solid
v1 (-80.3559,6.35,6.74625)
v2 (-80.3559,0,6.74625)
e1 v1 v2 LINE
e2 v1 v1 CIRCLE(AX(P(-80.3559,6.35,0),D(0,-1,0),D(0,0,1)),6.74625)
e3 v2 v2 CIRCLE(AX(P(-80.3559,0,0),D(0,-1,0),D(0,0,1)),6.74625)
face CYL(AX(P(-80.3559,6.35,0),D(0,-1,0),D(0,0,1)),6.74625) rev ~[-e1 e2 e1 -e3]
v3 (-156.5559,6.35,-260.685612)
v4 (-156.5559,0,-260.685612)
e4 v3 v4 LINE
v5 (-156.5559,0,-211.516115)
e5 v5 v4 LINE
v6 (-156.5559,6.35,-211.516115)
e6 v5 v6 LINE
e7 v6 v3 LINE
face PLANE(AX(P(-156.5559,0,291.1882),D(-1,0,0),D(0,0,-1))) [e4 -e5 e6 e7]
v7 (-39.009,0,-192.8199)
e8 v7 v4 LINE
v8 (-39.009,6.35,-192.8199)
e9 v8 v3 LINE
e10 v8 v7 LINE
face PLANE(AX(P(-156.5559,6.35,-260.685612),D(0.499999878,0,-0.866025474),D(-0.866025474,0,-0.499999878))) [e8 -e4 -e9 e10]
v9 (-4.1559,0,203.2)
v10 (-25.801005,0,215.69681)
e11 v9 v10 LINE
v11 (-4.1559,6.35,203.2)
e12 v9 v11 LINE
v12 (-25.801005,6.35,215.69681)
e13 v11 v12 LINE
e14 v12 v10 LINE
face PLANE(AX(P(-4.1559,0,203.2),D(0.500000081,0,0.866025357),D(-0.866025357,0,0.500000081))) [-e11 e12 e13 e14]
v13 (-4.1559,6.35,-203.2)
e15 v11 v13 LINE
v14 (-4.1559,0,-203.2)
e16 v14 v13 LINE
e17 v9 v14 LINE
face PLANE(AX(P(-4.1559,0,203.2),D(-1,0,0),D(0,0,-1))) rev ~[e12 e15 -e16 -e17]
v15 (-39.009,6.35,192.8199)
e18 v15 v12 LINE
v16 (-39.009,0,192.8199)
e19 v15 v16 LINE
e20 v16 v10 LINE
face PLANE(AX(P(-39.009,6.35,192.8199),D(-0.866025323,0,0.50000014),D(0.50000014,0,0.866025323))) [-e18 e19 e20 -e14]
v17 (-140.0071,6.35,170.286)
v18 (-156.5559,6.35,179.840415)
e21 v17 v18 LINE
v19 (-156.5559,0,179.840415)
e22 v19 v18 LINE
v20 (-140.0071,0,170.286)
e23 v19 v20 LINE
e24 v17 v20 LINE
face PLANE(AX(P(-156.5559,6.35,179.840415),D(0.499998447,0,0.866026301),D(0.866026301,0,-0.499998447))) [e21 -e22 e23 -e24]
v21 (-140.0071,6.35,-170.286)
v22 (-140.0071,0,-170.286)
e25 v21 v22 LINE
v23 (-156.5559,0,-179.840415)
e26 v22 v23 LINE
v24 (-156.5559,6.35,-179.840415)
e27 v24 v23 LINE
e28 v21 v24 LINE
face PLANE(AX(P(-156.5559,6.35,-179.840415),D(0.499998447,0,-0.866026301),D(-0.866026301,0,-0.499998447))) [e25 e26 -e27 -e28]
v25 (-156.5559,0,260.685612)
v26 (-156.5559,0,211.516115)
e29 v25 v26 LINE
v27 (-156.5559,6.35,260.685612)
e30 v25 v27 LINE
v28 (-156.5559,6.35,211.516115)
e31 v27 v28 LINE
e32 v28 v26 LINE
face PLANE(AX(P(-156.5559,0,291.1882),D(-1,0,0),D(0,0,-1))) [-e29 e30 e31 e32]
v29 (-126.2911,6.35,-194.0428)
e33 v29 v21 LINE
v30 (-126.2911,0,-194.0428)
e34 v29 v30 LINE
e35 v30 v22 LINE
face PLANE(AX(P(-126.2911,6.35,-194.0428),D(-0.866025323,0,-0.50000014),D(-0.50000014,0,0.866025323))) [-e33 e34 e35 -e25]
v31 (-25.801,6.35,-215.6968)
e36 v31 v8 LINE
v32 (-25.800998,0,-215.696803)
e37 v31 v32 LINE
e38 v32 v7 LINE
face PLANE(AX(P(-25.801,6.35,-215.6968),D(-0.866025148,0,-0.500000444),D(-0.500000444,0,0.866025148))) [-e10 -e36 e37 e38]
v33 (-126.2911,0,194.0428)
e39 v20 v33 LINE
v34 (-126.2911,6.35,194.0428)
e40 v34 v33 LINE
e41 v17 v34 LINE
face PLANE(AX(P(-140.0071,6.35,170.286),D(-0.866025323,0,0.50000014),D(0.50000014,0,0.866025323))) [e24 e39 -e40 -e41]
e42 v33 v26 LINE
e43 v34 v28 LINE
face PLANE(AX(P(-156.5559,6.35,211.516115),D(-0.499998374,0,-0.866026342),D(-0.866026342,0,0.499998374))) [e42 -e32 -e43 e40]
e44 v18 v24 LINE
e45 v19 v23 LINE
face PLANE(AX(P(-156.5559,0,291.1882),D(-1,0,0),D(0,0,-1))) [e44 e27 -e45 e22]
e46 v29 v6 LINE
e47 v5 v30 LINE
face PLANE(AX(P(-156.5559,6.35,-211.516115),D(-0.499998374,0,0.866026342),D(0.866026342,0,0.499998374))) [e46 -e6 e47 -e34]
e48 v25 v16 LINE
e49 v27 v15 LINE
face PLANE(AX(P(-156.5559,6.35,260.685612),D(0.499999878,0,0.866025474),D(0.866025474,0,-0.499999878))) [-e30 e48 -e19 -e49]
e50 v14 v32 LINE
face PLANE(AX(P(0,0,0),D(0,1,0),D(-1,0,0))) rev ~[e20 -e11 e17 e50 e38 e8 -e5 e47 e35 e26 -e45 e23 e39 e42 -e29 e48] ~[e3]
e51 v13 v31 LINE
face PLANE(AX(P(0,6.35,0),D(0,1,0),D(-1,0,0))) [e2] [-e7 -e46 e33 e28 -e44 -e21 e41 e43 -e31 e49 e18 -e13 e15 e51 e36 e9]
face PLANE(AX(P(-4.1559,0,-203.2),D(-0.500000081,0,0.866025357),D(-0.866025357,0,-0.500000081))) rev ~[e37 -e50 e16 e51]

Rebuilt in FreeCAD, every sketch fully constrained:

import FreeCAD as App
import Part
import Sketcher
from FreeCAD import Vector
Q = App.Units.Quantity

doc = App.newDocument("Part")
body = doc.addObject("PartDesign::Body", "Body")

sketch1 = doc.addObject("Sketcher::SketchObject", "Sketch")
body.addObject(sketch1)
sketch1.AttachmentSupport = (doc.XZ_Plane, [""])
sketch1.MapMode = "FlatFace"
sketch1.addGeometry([
    Part.LineSegment(Vector(-157, 291, 0), Vector(-4, 203, 0)),
    Part.LineSegment(Vector(-4, 203, 0), Vector(-4, -203, 0)),
    Part.LineSegment(Vector(-4, -203, 0), Vector(-157, -291, 0)),
    Part.LineSegment(Vector(-157, -291, 0), Vector(-157, 291, 0)),
], False)
sketch1.addConstraint([
    Sketcher.Constraint("Coincident", 0, 2, 1, 1),
    Sketcher.Constraint("Coincident", 1, 2, 2, 1),
    Sketcher.Constraint("Coincident", 2, 2, 3, 1),
    Sketcher.Constraint("Coincident", 3, 2, 0, 1),
    Sketcher.Constraint("Vertical", 1),
    Sketcher.Constraint("Vertical", 3),
    Sketcher.Constraint("Equal", 0, 2),
    Sketcher.Constraint("DistanceY", 1, 2, 1, 1, Q("16 in")),
    Sketcher.Constraint("Angle", 0, Q("-30 deg")),
    Sketcher.Constraint("DistanceX", 2, 2, 1, 2, Q("6 in")),
    Sketcher.Constraint("DistanceY", -1, 1, 0, 2, Q("8 in")),
    Sketcher.Constraint("DistanceX", 0, 2, -1, 1, Q("4.156 mm")),
])
pad1 = doc.addObject("PartDesign::Pad", "Pad")
body.addObject(pad1)
pad1.Profile = sketch1
pad1.Length = Q("0.25 in")
pad1.Reversed = True

sketch2 = doc.addObject("Sketcher::SketchObject", "Sketch001")
body.addObject(sketch2)
sketch2.AttachmentSupport = (doc.XZ_Plane, [""])
sketch2.MapMode = "FlatFace"
sketch2.AttachmentOffset = App.Placement(Vector(0, 0, -0.25 * 25.4), App.Rotation())
sketch2.addGeometry(Part.Circle(Vector(-80, 0, 0), Vector(0, 0, 1), 7), False)
sketch2.addConstraint([
    Sketcher.Constraint("PointOnObject", 0, 3, -1),
    Sketcher.Constraint("Diameter", 0, Q("0.5312 in")),
    Sketcher.Constraint("DistanceX", 0, 3, -1, 1, Q("80.356 mm")),
])
doc.recompute()
hole = doc.addObject("PartDesign::Hole", "Hole")
body.addObject(hole)
hole.Profile = sketch2
hole.ThreadType = "None"
hole.Diameter = Q("0.5312008 in")
hole.DepthType = "ThroughAll"
hole.Reversed = True

sketch3 = doc.addObject("Sketcher::SketchObject", "Sketch002")
body.addObject(sketch3)
sketch3.AttachmentSupport = (doc.XZ_Plane, [""])
sketch3.MapMode = "FlatFace"
sketch3.AttachmentOffset = App.Placement(Vector(0, 0, -0.25 * 25.4), App.Rotation())
sketch3.addGeometry([
    Part.LineSegment(Vector(-39, 192.8, 0), Vector(-157.6, 261.3, 0)),
    Part.LineSegment(Vector(-157.6, 261.3, 0), Vector(-157.6, 262.4, 0)),
    Part.LineSegment(Vector(-157.6, 262.4, 0), Vector(-1271.2, 905.4, 0)),
    Part.LineSegment(Vector(-1271.2, 905.4, 0), Vector(-1258.5, 927.4, 0)),
    Part.LineSegment(Vector(-1258.5, 927.4, 0), Vector(-157.6, 291.8, 0)),
    Part.LineSegment(Vector(-157.6, 291.8, 0), Vector(-157.6, 292.9, 0)),
    Part.LineSegment(Vector(-157.6, 292.9, 0), Vector(-25.3, 216.6, 0)),
    Part.LineSegment(Vector(-25.3, 216.6, 0), Vector(-39, 192.8, 0)),
    Part.LineSegment(Vector(-157.6, -261.3, 0), Vector(-39, -192.8, 0)),
    Part.LineSegment(Vector(-39, -192.8, 0), Vector(-25.8, -215.7, 0)),
    Part.LineSegment(Vector(-25.8, -215.7, 0), Vector(-26.7, -216.2, 0)),
    Part.LineSegment(Vector(-26.7, -216.2, 0), Vector(-157.6, -291.8, 0)),
    Part.LineSegment(Vector(-157.6, -291.8, 0), Vector(-157.6, -261.3, 0)),
    Part.LineSegment(Vector(-157.6, -180.4, 0), Vector(-140, -170.3, 0)),
    Part.LineSegment(Vector(-140, -170.3, 0), Vector(-126.3, -194, 0)),
    Part.LineSegment(Vector(-126.3, -194, 0), Vector(-157.6, -212.1, 0)),
    Part.LineSegment(Vector(-157.6, -212.1, 0), Vector(-157.6, -210.9, 0)),
    Part.LineSegment(Vector(-157.6, -210.9, 0), Vector(-1227.5, -828.7, 0)),
    Part.LineSegment(Vector(-1227.5, -828.7, 0), Vector(-1240.2, -806.7, 0)),
    Part.LineSegment(Vector(-1240.2, -806.7, 0), Vector(-157.6, -181.6, 0)),
    Part.LineSegment(Vector(-157.6, -181.6, 0), Vector(-157.6, -180.4, 0)),
    Part.LineSegment(Vector(-157.6, 212.1, 0), Vector(-126.3, 194, 0)),
    Part.LineSegment(Vector(-126.3, 194, 0), Vector(-140, 170.3, 0)),
    Part.LineSegment(Vector(-140, 170.3, 0), Vector(-157.6, 180.4, 0)),
    Part.LineSegment(Vector(-157.6, 180.4, 0), Vector(-157.6, 181.6, 0)),
    Part.LineSegment(Vector(-157.6, 181.6, 0), Vector(-1240.2, 806.7, 0)),
    Part.LineSegment(Vector(-1240.2, 806.7, 0), Vector(-1227.5, 828.7, 0)),
    Part.LineSegment(Vector(-1227.5, 828.7, 0), Vector(-157.6, 210.9, 0)),
    Part.LineSegment(Vector(-157.6, 210.9, 0), Vector(-157.6, 212.1, 0)),
], False)
sketch3.addConstraint([
    Sketcher.Constraint("Coincident", 0, 2, 1, 1),
    Sketcher.Constraint("Coincident", 1, 2, 2, 1),
    Sketcher.Constraint("Coincident", 2, 2, 3, 1),
    Sketcher.Constraint("Coincident", 3, 2, 4, 1),
    Sketcher.Constraint("Coincident", 4, 2, 5, 1),
    Sketcher.Constraint("Coincident", 5, 2, 6, 1),
    Sketcher.Constraint("Coincident", 6, 2, 7, 1),
    Sketcher.Constraint("Coincident", 7, 2, 0, 1),
    Sketcher.Constraint("Coincident", 8, 2, 9, 1),
    Sketcher.Constraint("Coincident", 9, 2, 10, 1),
    Sketcher.Constraint("Coincident", 10, 2, 11, 1),
    Sketcher.Constraint("Coincident", 11, 2, 12, 1),
    Sketcher.Constraint("Coincident", 12, 2, 8, 1),
    Sketcher.Constraint("Coincident", 13, 2, 14, 1),
    Sketcher.Constraint("Coincident", 14, 2, 15, 1),
    Sketcher.Constraint("Coincident", 15, 2, 16, 1),
    Sketcher.Constraint("Coincident", 16, 2, 17, 1),
    Sketcher.Constraint("Coincident", 17, 2, 18, 1),
    Sketcher.Constraint("Coincident", 18, 2, 19, 1),
    Sketcher.Constraint("Coincident", 19, 2, 20, 1),
    Sketcher.Constraint("Coincident", 20, 2, 13, 1),
    Sketcher.Constraint("Coincident", 21, 2, 22, 1),
    Sketcher.Constraint("Coincident", 22, 2, 23, 1),
    Sketcher.Constraint("Coincident", 23, 2, 24, 1),
    Sketcher.Constraint("Coincident", 24, 2, 25, 1),
    Sketcher.Constraint("Coincident", 25, 2, 26, 1),
    Sketcher.Constraint("Coincident", 26, 2, 27, 1),
    Sketcher.Constraint("Coincident", 27, 2, 28, 1),
    Sketcher.Constraint("Coincident", 28, 2, 21, 1),
    Sketcher.Constraint("Vertical", 1),
    Sketcher.Constraint("Vertical", 5),
    Sketcher.Constraint("Vertical", 12),
    Sketcher.Constraint("Vertical", 16),
    Sketcher.Constraint("Vertical", 20),
    Sketcher.Constraint("Vertical", 24),
    Sketcher.Constraint("Vertical", 28),
    Sketcher.Constraint("Symmetric", 7, 2, 8, 2, -1),
    Sketcher.Constraint("Symmetric", 4, 2, 11, 2, -1),
    Sketcher.Constraint("Symmetric", 0, 2, 12, 2, -1),
    Sketcher.Constraint("Symmetric", 14, 2, 21, 2, -1),
    Sketcher.Constraint("Symmetric", 13, 2, 22, 2, -1),
    Sketcher.Constraint("Symmetric", 20, 2, 23, 2, -1),
    Sketcher.Constraint("Symmetric", 18, 2, 25, 2, -1),
    Sketcher.Constraint("Symmetric", 17, 2, 26, 2, -1),
    Sketcher.Constraint("Symmetric", 16, 2, 27, 2, -1),
    Sketcher.Constraint("Parallel", 0, 2),
    Sketcher.Constraint("Perpendicular", 2, 3),
    Sketcher.Constraint("Perpendicular", 3, 4),
    Sketcher.Constraint("Parallel", 4, 6),
    Sketcher.Constraint("Perpendicular", 6, 7),
    Sketcher.Constraint("Perpendicular", 8, 9),
    Sketcher.Constraint("Perpendicular", 9, 10),
    Sketcher.Constraint("Parallel", 10, 11),
    Sketcher.Constraint("Parallel", 11, 13),
    Sketcher.Constraint("Perpendicular", 13, 14),
    Sketcher.Constraint("Perpendicular", 14, 15),
    Sketcher.Constraint("Parallel", 15, 17),
    Sketcher.Constraint("Perpendicular", 17, 18),
    Sketcher.Constraint("Perpendicular", 18, 19),
    Sketcher.Constraint("Perpendicular", 7, 21),
    Sketcher.Constraint("Parallel", 23, 25),
    Sketcher.Constraint("Vertical", 12, 2, 15, 2),
    Sketcher.Constraint("Vertical", 16, 2, 19, 2),
    Sketcher.Constraint("Equal", 1, 5),
    Sketcher.Constraint("Equal", 5, 16),
    Sketcher.Constraint("Equal", 16, 20),
    Sketcher.Constraint("Equal", 7, 14),
    Sketcher.Constraint("Distance", 10, Q("0.04 in")),
    Sketcher.Constraint("Distance", 3, Q("1 in")),
    Sketcher.Constraint("Angle", 0, Q("150 deg")),
    Sketcher.Constraint("Distance", 7, Q("1.08 in")),
    Sketcher.Constraint("DistanceY", -1, 1, 3, 2, Q("36.512 in")),
    Sketcher.Constraint("DistanceY", 9, 2, -1, 1, Q("8.492 in")),
    Sketcher.Constraint("DistanceX", 17, 2, -1, 1, Q("48.328 in")),
    Sketcher.Constraint("DistanceY", 12, 2, 16, 2, Q("1.982 in")),
    Sketcher.Constraint("Distance", 4, Q("50.0496 in")),
    Sketcher.Constraint("Distance", 13, Q("0.7985 in")),
    Sketcher.Constraint("Distance", 19, Q("49.2184 in")),
])
pocket1 = doc.addObject("PartDesign::Pocket", "Pocket")
body.addObject(pocket1)
pocket1.Profile = sketch3
pocket1.Length = Q("1 in")
pocket1.Reversed = True

doc.recompute()
